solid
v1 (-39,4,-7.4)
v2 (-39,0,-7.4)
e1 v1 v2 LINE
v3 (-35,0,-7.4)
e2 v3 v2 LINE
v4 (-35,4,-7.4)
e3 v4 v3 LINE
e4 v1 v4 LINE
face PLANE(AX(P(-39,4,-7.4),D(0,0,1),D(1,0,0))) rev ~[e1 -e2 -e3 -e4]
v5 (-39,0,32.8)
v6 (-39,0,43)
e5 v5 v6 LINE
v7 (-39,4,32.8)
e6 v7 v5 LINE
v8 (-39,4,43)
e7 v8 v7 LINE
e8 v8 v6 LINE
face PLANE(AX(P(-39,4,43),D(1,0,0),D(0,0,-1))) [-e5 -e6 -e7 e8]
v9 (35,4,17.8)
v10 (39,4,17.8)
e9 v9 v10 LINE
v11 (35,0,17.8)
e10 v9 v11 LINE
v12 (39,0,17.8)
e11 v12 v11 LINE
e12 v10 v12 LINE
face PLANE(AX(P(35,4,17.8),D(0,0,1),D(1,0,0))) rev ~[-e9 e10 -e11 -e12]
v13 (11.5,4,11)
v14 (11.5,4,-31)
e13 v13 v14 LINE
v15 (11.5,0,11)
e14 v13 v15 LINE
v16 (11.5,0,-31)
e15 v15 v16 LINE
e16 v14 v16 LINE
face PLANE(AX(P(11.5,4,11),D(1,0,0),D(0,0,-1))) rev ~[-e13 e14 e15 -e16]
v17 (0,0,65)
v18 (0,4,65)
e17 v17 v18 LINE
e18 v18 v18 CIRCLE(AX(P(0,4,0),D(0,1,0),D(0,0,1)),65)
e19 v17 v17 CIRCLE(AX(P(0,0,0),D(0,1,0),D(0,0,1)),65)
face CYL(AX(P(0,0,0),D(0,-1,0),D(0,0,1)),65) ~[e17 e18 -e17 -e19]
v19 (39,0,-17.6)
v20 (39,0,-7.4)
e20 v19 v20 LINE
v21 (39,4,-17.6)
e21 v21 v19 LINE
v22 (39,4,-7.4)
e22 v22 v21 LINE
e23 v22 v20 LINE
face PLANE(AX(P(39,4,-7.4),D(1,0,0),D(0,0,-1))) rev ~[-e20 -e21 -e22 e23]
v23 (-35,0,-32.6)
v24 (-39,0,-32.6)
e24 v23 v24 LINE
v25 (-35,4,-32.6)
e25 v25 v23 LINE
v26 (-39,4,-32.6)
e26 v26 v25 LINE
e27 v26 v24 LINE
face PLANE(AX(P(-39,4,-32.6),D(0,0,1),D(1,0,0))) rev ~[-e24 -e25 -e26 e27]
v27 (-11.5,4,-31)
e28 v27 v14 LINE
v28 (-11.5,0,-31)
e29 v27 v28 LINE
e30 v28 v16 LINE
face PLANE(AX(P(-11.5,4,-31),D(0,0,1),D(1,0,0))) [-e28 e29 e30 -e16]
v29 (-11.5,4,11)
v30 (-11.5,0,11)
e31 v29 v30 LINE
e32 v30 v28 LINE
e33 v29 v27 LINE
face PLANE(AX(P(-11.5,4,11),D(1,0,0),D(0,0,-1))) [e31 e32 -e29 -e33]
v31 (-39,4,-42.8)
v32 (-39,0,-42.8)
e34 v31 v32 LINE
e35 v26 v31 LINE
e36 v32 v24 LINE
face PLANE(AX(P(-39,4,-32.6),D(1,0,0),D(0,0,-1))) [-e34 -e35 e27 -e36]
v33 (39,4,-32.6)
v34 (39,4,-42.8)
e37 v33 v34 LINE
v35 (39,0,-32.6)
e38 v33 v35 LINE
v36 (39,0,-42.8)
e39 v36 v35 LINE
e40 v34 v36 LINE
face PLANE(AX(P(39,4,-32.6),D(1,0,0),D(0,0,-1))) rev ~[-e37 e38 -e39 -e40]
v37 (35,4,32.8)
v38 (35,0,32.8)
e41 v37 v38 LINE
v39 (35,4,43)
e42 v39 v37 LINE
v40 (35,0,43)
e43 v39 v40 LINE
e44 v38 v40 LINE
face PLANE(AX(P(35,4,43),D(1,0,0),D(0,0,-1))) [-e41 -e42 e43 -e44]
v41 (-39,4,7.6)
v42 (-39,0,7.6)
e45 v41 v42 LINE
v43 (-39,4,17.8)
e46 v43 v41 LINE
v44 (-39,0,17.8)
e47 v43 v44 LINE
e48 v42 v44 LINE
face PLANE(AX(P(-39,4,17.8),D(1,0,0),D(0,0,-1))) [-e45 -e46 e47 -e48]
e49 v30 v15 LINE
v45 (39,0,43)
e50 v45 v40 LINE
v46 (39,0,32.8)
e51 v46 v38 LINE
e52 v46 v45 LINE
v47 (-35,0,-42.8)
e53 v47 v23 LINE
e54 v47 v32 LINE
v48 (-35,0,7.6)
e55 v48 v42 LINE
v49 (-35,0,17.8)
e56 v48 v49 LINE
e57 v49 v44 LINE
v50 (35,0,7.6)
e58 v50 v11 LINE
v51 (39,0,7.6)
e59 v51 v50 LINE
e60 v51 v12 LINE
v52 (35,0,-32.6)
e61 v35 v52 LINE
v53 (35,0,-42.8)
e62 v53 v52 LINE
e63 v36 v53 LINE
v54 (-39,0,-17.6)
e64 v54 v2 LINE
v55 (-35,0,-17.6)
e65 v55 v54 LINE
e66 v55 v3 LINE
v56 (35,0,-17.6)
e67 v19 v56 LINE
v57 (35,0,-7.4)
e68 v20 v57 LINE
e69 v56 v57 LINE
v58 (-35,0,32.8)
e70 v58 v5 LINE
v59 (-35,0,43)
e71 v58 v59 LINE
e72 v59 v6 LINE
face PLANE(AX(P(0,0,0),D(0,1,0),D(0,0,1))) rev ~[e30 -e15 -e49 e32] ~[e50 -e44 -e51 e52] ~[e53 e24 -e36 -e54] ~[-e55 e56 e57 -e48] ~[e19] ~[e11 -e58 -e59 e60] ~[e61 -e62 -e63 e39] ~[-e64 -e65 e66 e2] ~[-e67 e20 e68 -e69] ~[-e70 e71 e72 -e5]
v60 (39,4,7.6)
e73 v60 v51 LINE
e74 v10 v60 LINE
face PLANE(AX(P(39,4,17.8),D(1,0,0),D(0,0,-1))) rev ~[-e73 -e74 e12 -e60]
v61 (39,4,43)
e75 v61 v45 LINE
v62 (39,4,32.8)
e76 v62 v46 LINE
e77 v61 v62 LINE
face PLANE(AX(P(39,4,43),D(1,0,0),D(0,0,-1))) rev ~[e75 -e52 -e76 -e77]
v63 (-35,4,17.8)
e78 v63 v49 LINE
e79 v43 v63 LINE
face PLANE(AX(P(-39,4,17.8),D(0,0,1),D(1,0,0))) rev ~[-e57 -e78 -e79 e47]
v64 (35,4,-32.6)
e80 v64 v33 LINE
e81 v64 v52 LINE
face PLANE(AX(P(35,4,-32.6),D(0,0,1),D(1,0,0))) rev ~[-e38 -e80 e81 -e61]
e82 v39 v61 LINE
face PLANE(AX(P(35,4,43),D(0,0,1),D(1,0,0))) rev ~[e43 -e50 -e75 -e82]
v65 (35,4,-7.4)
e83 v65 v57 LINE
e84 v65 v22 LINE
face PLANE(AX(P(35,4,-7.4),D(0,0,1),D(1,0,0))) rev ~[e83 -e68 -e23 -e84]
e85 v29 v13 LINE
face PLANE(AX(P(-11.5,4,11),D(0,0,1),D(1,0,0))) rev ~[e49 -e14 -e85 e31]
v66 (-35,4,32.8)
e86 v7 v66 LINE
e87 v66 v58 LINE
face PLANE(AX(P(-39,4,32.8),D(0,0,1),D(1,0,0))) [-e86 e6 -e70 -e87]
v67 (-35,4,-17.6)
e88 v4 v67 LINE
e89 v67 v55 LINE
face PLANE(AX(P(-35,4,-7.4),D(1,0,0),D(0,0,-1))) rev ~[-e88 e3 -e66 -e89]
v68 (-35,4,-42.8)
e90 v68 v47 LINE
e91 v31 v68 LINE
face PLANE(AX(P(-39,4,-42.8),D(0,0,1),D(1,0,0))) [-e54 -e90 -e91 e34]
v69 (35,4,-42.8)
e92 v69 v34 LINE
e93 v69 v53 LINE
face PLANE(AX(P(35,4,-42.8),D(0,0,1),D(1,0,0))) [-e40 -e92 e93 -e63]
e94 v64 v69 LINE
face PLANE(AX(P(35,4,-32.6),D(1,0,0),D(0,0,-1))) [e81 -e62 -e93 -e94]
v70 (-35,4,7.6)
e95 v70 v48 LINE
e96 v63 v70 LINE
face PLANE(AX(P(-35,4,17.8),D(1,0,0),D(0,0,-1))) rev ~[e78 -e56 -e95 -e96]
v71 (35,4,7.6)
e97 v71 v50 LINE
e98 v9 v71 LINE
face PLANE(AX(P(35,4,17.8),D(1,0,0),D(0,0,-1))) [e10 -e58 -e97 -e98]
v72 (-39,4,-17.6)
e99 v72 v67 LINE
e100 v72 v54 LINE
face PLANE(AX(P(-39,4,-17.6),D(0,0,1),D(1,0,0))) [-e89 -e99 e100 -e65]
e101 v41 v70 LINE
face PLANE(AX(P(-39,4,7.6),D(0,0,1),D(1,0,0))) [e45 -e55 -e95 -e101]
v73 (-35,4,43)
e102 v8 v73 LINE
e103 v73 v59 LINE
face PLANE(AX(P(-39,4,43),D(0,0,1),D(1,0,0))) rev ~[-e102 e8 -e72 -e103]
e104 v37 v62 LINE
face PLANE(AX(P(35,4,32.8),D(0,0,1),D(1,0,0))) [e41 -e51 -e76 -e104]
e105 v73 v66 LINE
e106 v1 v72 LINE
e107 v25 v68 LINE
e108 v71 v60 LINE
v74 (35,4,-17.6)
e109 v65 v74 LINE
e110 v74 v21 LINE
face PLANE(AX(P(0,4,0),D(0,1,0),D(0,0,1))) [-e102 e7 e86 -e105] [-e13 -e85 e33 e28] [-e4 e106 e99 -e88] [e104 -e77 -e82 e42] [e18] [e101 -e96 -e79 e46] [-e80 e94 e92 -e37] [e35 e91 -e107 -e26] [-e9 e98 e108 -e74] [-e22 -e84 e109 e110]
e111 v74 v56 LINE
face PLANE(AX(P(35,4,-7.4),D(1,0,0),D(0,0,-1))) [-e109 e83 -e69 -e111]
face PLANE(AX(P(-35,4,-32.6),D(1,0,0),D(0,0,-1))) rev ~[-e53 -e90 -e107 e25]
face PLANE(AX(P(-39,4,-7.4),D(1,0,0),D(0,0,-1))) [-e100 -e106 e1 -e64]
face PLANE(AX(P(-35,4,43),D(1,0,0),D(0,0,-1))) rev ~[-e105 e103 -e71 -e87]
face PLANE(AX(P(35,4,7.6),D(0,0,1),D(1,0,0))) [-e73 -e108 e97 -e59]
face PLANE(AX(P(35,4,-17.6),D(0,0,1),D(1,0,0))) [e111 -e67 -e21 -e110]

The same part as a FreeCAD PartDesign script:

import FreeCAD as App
import Part
import Sketcher

doc = App.newDocument("Part")
body = doc.addObject("PartDesign::Body", "Body")

sketch1 = body.newObject("Sketcher::SketchObject", "Sketch")
sketch1.AttachmentSupport = (doc.getObject("XZ_Plane"), [""])
sketch1.MapMode = "FlatFace"
sketch1.addGeometry(Part.Circle(App.Vector(0, 0, 0), App.Vector(0, 0, 1), 65), False)
sketch1.addConstraint([
    Sketcher.Constraint("Coincident", 0, 3, -1, 1),
    Sketcher.Constraint("Diameter", 0, 130.0),
])
pad1 = body.newObject("PartDesign::Pad", "Pad")
pad1.Profile = sketch1
pad1.Length = 4
pad1.Reversed = True

sketch2 = body.newObject("Sketcher::SketchObject", "Sketch001")
sketch2.AttachmentSupport = (doc.getObject("XZ_Plane"), [""])
sketch2.MapMode = "FlatFace"
sketch2.AttachmentOffset = App.Placement(App.Vector(0, 0, -4), App.Rotation())
sketch2.addGeometry([
    Part.LineSegment(App.Vector(-39, -17.6, 0), App.Vector(-39, -7.4, 0)),
    Part.LineSegment(App.Vector(-39, -7.4, 0), App.Vector(-35, -7.4, 0)),
    Part.LineSegment(App.Vector(-35, -7.4, 0), App.Vector(-35, -17.6, 0)),
    Part.LineSegment(App.Vector(-35, -17.6, 0), App.Vector(-39, -17.6, 0)),
], False)
sketch2.addConstraint([
    Sketcher.Constraint("Coincident", 0, 2, 1, 1),
    Sketcher.Constraint("Coincident", 1, 2, 2, 1),
    Sketcher.Constraint("Coincident", 2, 2, 3, 1),
    Sketcher.Constraint("Coincident", 3, 2, 0, 1),
    Sketcher.Constraint("Vertical", 0),
    Sketcher.Constraint("Horizontal", 1),
    Sketcher.Constraint("Vertical", 2),
    Sketcher.Constraint("Horizontal", 3),
    Sketcher.Constraint("DistanceX", 1, 1, 1, 2, 4.0),
    Sketcher.Constraint("DistanceY", 0, 1, 0, 2, 10.2),
    Sketcher.Constraint("DistanceX", 0, 2, -1, 1, 39.0),
    Sketcher.Constraint("DistanceY", 0, 2, -1, 1, 7.4),
])
pocket1 = body.newObject("PartDesign::Pocket", "Pocket")
pocket1.Profile = sketch2
pocket1.Type = "UpToFirst"
pocket1.Reversed = True

sketch3 = body.newObject("Sketcher::SketchObject", "Sketch002")
sketch3.AttachmentSupport = (doc.getObject("XZ_Plane"), [""])
sketch3.MapMode = "FlatFace"
sketch3.AttachmentOffset = App.Placement(App.Vector(0, 0, -4), App.Rotation())
sketch3.addGeometry([
    Part.LineSegment(App.Vector(-39, 7.6, 0), App.Vector(-39, 17.8, 0)),
    Part.LineSegment(App.Vector(-39, 17.8, 0), App.Vector(-35, 17.8, 0)),
    Part.LineSegment(App.Vector(-35, 17.8, 0), App.Vector(-35, 7.6, 0)),
    Part.LineSegment(App.Vector(-35, 7.6, 0), App.Vector(-39, 7.6, 0)),
], False)
sketch3.addConstraint([
    Sketcher.Constraint("Coincident", 0, 2, 1, 1),
    Sketcher.Constraint("Coincident", 1, 2, 2, 1),
    Sketcher.Constraint("Coincident", 2, 2, 3, 1),
    Sketcher.Constraint("Coincident", 3, 2, 0, 1),
    Sketcher.Constraint("Vertical", 0),
    Sketcher.Constraint("Horizontal", 1),
    Sketcher.Constraint("Vertical", 2),
    Sketcher.Constraint("Horizontal", 3),
    Sketcher.Constraint("DistanceX", 1, 1, 1, 2, 4.0),
    Sketcher.Constraint("DistanceY", 0, 1, 0, 2, 10.2),
    Sketcher.Constraint("DistanceX", 0, 2, -1, 1, 39.0),
    Sketcher.Constraint("DistanceY", -1, 1, 0, 2, 17.8),
])
pocket2 = body.newObject("PartDesign::Pocket", "Pocket001")
pocket2.Profile = sketch3
pocket2.Type = "UpToFirst"
pocket2.Reversed = True

sketch4 = body.newObject("Sketcher::SketchObject", "Sketch003")
sketch4.AttachmentSupport = (doc.getObject("XZ_Plane"), [""])
sketch4.MapMode = "FlatFace"
sketch4.AttachmentOffset = App.Placement(App.Vector(0, 0, -4), App.Rotation())
sketch4.addGeometry([
    Part.LineSegment(App.Vector(-39, 32.8, 0), App.Vector(-39, 43, 0)),
    Part.LineSegment(App.Vector(-39, 43, 0), App.Vector(-35, 43, 0)),
    Part.LineSegment(App.Vector(-35, 43, 0), App.Vector(-35, 32.8, 0)),
    Part.LineSegment(App.Vector(-35, 32.8, 0), App.Vector(-39, 32.8, 0)),
], False)
sketch4.addConstraint([
    Sketcher.Constraint("Coincident", 0, 2, 1, 1),
    Sketcher.Constraint("Coincident", 1, 2, 2, 1),
    Sketcher.Constraint("Coincident", 2, 2, 3, 1),
    Sketcher.Constraint("Coincident", 3, 2, 0, 1),
    Sketcher.Constraint("Vertical", 0),
    Sketcher.Constraint("Horizontal", 1),
    Sketcher.Constraint("Vertical", 2),
    Sketcher.Constraint("Horizontal", 3),
    Sketcher.Constraint("DistanceX", 1, 1, 1, 2, 4.0),
    Sketcher.Constraint("DistanceY", 0, 1, 0, 2, 10.2),
    Sketcher.Constraint("DistanceX", 0, 2, -1, 1, 39.0),
    Sketcher.Constraint("DistanceY", -1, 1, 0, 2, 43.0),
])
pocket3 = body.newObject("PartDesign::Pocket", "Pocket002")
pocket3.Profile = sketch4
pocket3.Type = "UpToFirst"
pocket3.Reversed = True

sketch5 = body.newObject("Sketcher::SketchObject", "Sketch004")
sketch5.AttachmentSupport = (doc.getObject("XZ_Plane"), [""])
sketch5.MapMode = "FlatFace"
sketch5.AttachmentOffset = App.Placement(App.Vector(0, 0, -4), App.Rotation())
sketch5.addGeometry([
    Part.LineSegment(App.Vector(-39, -42.8, 0), App.Vector(-39, -32.6, 0)),
    Part.LineSegment(App.Vector(-39, -32.6, 0), App.Vector(-35, -32.6, 0)),
    Part.LineSegment(App.Vector(-35, -32.6, 0), App.Vector(-35, -42.8, 0)),
    Part.LineSegment(App.Vector(-35, -42.8, 0), App.Vector(-39, -42.8, 0)),
], False)
sketch5.addConstraint([
    Sketcher.Constraint("Coincident", 0, 2, 1, 1),
    Sketcher.Constraint("Coincident", 1, 2, 2, 1),
    Sketcher.Constraint("Coincident", 2, 2, 3, 1),
    Sketcher.Constraint("Coincident", 3, 2, 0, 1),
    Sketcher.Constraint("Vertical", 0),
    Sketcher.Constraint("Horizontal", 1),
    Sketcher.Constraint("Vertical", 2),
    Sketcher.Constraint("Horizontal", 3),
    Sketcher.Constraint("DistanceX", 1, 1, 1, 2, 4.0),
    Sketcher.Constraint("DistanceY", 0, 1, 0, 2, 10.2),
    Sketcher.Constraint("DistanceX", 0, 2, -1, 1, 39.0),
    Sketcher.Constraint("DistanceY", 0, 2, -1, 1, 32.6),
])
pocket4 = body.newObject("PartDesign::Pocket", "Pocket003")
pocket4.Profile = sketch5
pocket4.Type = "UpToFirst"
pocket4.Reversed = True

sketch6 = body.newObject("Sketcher::SketchObject", "Sketch005")
sketch6.AttachmentSupport = (doc.getObject("XZ_Plane"), [""])
sketch6.MapMode = "FlatFace"
sketch6.AttachmentOffset = App.Placement(App.Vector(0, 0, -4), App.Rotation())
sketch6.addGeometry([
    Part.LineSegment(App.Vector(35, -42.8, 0), App.Vector(35, -32.6, 0)),
    Part.LineSegment(App.Vector(35, -32.6, 0), App.Vector(39, -32.6, 0)),
    Part.LineSegment(App.Vector(39, -32.6, 0), App.Vector(39, -42.8, 0)),
    Part.LineSegment(App.Vector(39, -42.8, 0), App.Vector(35, -42.8, 0)),
], False)
sketch6.addConstraint([
    Sketcher.Constraint("Coincident", 0, 2, 1, 1),
    Sketcher.Constraint("Coincident", 1, 2, 2, 1),
    Sketcher.Constraint("Coincident", 2, 2, 3, 1),
    Sketcher.Constraint("Coincident", 3, 2, 0, 1),
    Sketcher.Constraint("Vertical", 0),
    Sketcher.Constraint("Horizontal", 1),
    Sketcher.Constraint("Vertical", 2),
    Sketcher.Constraint("Horizontal", 3),
    Sketcher.Constraint("DistanceX", 1, 1, 1, 2, 4.0),
    Sketcher.Constraint("DistanceY", 0, 1, 0, 2, 10.2),
    Sketcher.Constraint("DistanceX", -1, 1, 0, 2, 35.0),
    Sketcher.Constraint("DistanceY", 0, 2, -1, 1, 32.6),
])
pocket5 = body.newObject("PartDesign::Pocket", "Pocket004")
pocket5.Profile = sketch6
pocket5.Type = "UpToFirst"
pocket5.Reversed = True

sketch7 = body.newObject("Sketcher::SketchObject", "Sketch006")
sketch7.AttachmentSupport = (doc.getObject("XZ_Plane"), [""])
sketch7.MapMode = "FlatFace"
sketch7.AttachmentOffset = App.Placement(App.Vector(0, 0, -4), App.Rotation())
sketch7.addGeometry([
    Part.LineSegment(App.Vector(35, -17.6, 0), App.Vector(35, -7.4, 0)),
    Part.LineSegment(App.Vector(35, -7.4, 0), App.Vector(39, -7.4, 0)),
    Part.LineSegment(App.Vector(39, -7.4, 0), App.Vector(39, -17.6, 0)),
    Part.LineSegment(App.Vector(39, -17.6, 0), App.Vector(35, -17.6, 0)),
], False)
sketch7.addConstraint([
    Sketcher.Constraint("Coincident", 0, 2, 1, 1),
    Sketcher.Constraint("Coincident", 1, 2, 2, 1),
    Sketcher.Constraint("Coincident", 2, 2, 3, 1),
    Sketcher.Constraint("Coincident", 3, 2, 0, 1),
    Sketcher.Constraint("Vertical", 0),
    Sketcher.Constraint("Horizontal", 1),
    Sketcher.Constraint("Vertical", 2),
    Sketcher.Constraint("Horizontal", 3),
    Sketcher.Constraint("DistanceX", 1, 1, 1, 2, 4.0),
    Sketcher.Constraint("DistanceY", 0, 1, 0, 2, 10.2),
    Sketcher.Constraint("DistanceX", -1, 1, 0, 2, 35.0),
    Sketcher.Constraint("DistanceY", 0, 2, -1, 1, 7.4),
])
pocket6 = body.newObject("PartDesign::Pocket", "Pocket005")
pocket6.Profile = sketch7
pocket6.Type = "UpToFirst"
pocket6.Reversed = True

sketch8 = body.newObject("Sketcher::SketchObject", "Sketch007")
sketch8.AttachmentSupport = (doc.getObject("XZ_Plane"), [""])
sketch8.MapMode = "FlatFace"
sketch8.AttachmentOffset = App.Placement(App.Vector(0, 0, -4), App.Rotation())
sketch8.addGeometry([
    Part.LineSegment(App.Vector(35, 7.6, 0), App.Vector(35, 17.8, 0)),
    Part.LineSegment(App.Vector(35, 17.8, 0), App.Vector(39, 17.8, 0)),
    Part.LineSegment(App.Vector(39, 17.8, 0), App.Vector(39, 7.6, 0)),
    Part.LineSegment(App.Vector(39, 7.6, 0), App.Vector(35, 7.6, 0)),
], False)
sketch8.addConstraint([
    Sketcher.Constraint("Coincident", 0, 2, 1, 1),
    Sketcher.Constraint("Coincident", 1, 2, 2, 1),
    Sketcher.Constraint("Coincident", 2, 2, 3, 1),
    Sketcher.Constraint("Coincident", 3, 2, 0, 1),
    Sketcher.Constraint("Vertical", 0),
    Sketcher.Constraint("Horizontal", 1),
    Sketcher.Constraint("Vertical", 2),
    Sketcher.Constraint("Horizontal", 3),
    Sketcher.Constraint("DistanceX", 1, 1, 1, 2, 4.0),
    Sketcher.Constraint("DistanceY", 0, 1, 0, 2, 10.2),
    Sketcher.Constraint("DistanceX", -1, 1, 0, 2, 35.0),
    Sketcher.Constraint("DistanceY", -1, 1, 0, 2, 17.8),
])
pocket7 = body.newObject("PartDesign::Pocket", "Pocket006")
pocket7.Profile = sketch8
pocket7.Type = "UpToFirst"
pocket7.Reversed = True

sketch9 = body.newObject("Sketcher::SketchObject", "Sketch008")
sketch9.AttachmentSupport = (doc.getObject("XZ_Plane"), [""])
sketch9.MapMode = "FlatFace"
sketch9.AttachmentOffset = App.Placement(App.Vector(0, 0, -4), App.Rotation())
sketch9.addGeometry([
    Part.LineSegment(App.Vector(35, 32.8, 0), App.Vector(35, 43, 0)),
    Part.LineSegment(App.Vector(35, 43, 0), App.Vector(39, 43, 0)),
    Part.LineSegment(App.Vector(39, 43, 0), App.Vector(39, 32.8, 0)),
    Part.LineSegment(App.Vector(39, 32.8, 0), App.Vector(35, 32.8, 0)),
], False)
sketch9.addConstraint([
    Sketcher.Constraint("Coincident", 0, 2, 1, 1),
    Sketcher.Constraint("Coincident", 1, 2, 2, 1),
    Sketcher.Constraint("Coincident", 2, 2, 3, 1),
    Sketcher.Constraint("Coincident", 3, 2, 0, 1),
    Sketcher.Constraint("Vertical", 0),
    Sketcher.Constraint("Horizontal", 1),
    Sketcher.Constraint("Vertical", 2),
    Sketcher.Constraint("Horizontal", 3),
    Sketcher.Constraint("DistanceX", 1, 1, 1, 2, 4.0),
    Sketcher.Constraint("DistanceY", 0, 1, 0, 2, 10.2),
    Sketcher.Constraint("DistanceX", -1, 1, 0, 2, 35.0),
    Sketcher.Constraint("DistanceY", -1, 1, 0, 2, 43.0),
])
pocket8 = body.newObject("PartDesign::Pocket", "Pocket007")
pocket8.Profile = sketch9
pocket8.Type = "UpToFirst"
pocket8.Reversed = True

sketch10 = body.newObject("Sketcher::SketchObject", "Sketch009")
sketch10.AttachmentSupport = (doc.getObject("XZ_Plane"), [""])
sketch10.MapMode = "FlatFace"
sketch10.AttachmentOffset = App.Placement(App.Vector(0, 0, -4), App.Rotation())
sketch10.addGeometry([
    Part.LineSegment(App.Vector(-11.5, -31, 0), App.Vector(-11.5, 11, 0)),
    Part.LineSegment(App.Vector(-11.5, 11, 0), App.Vector(11.5, 11, 0)),
    Part.LineSegment(App.Vector(11.5, 11, 0), App.Vector(11.5, -31, 0)),
    Part.LineSegment(App.Vector(11.5, -31, 0), App.Vector(-11.5, -31, 0)),
], False)
sketch10.addConstraint([
    Sketcher.Constraint("Coincident", 0, 2, 1, 1),
    Sketcher.Constraint("Coincident", 1, 2, 2, 1),
    Sketcher.Constraint("Coincident", 2, 2, 3, 1),
    Sketcher.Constraint("Coincident", 3, 2, 0, 1),
    Sketcher.Constraint("Vertical", 0),
    Sketcher.Constraint("Horizontal", 1),
    Sketcher.Constraint("Vertical", 2),
    Sketcher.Constraint("Horizontal", 3),
    Sketcher.Constraint("DistanceX", 1, 1, 1, 2, 23.0),
    Sketcher.Constraint("DistanceY", 0, 1, 0, 2, 42.0),
    Sketcher.Constraint("DistanceY", -1, 1, 0, 2, 11.0),
    Sketcher.Constraint("DistanceX", 0, 2, -1, 1, 11.5),
])
pocket9 = body.newObject("PartDesign::Pocket", "Pocket008")
pocket9.Profile = sketch10
pocket9.Length = 10
pocket9.Reversed = True

doc.recompute()
